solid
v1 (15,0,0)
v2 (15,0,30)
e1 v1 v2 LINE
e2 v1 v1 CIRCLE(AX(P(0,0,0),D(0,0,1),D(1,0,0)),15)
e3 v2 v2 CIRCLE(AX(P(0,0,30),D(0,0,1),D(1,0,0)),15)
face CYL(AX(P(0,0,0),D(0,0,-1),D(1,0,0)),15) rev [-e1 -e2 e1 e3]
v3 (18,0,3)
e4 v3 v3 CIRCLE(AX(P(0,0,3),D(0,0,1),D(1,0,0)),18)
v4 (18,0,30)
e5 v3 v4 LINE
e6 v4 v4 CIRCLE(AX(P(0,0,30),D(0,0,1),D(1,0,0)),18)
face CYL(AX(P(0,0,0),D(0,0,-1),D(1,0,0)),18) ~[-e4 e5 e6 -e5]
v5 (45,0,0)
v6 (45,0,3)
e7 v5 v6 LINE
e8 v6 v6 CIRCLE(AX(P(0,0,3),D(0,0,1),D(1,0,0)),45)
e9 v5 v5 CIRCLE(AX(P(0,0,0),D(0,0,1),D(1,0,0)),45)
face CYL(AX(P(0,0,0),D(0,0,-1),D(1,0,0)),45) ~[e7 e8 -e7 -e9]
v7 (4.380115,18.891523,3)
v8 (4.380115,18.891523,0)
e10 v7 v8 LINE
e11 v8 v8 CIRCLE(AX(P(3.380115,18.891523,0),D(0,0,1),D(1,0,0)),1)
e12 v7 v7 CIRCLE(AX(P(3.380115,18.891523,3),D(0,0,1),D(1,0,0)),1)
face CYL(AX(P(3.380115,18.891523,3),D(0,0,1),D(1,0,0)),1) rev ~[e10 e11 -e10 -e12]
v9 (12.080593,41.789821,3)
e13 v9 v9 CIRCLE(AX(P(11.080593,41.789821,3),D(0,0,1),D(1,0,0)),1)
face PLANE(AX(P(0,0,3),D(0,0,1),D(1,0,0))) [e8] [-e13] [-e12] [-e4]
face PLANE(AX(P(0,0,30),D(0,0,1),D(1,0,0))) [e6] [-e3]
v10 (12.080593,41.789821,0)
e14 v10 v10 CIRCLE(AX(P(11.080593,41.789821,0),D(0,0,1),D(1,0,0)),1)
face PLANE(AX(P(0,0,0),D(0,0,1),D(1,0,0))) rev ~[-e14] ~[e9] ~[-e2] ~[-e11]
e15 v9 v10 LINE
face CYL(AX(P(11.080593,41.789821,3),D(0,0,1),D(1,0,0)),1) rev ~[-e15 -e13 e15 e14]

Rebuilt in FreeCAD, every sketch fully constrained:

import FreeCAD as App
import Part
import Sketcher
Q = App.Units.Quantity

doc = App.newDocument("Part")
body = doc.addObject("PartDesign::Body", "Body")

# Sketch on XY plane
sketch1 = body.newObject("Sketcher::SketchObject", "Sketch")
sketch1.AttachmentSupport = (doc.getObject("XY_Plane"), [""])
sketch1.MapMode = "FlatFace"
sketch1.addGeometry(Part.Circle(App.Vector(0, 0, 0), App.Vector(0, 0, 1), 18), False)
sketch1.addGeometry(Part.Circle(App.Vector(0, 0, 0), App.Vector(0, 0, 1), 15), False)
sketch1.addConstraint(Sketcher.Constraint("Coincident", 0, 3, -1, 1))
sketch1.addConstraint(Sketcher.Constraint("Coincident", 1, 3, -1, 1))
sketch1.addConstraint(Sketcher.Constraint("Diameter", 0, Q("36 mm")))
sketch1.addConstraint(Sketcher.Constraint("Diameter", 1, Q("30 mm")))
pad1 = body.newObject("PartDesign::Pad", "Pad")
pad1.Profile = sketch1
pad1.Length = 30

# Sketch on XY plane
sketch2 = body.newObject("Sketcher::SketchObject", "Sketch001")
sketch2.AttachmentSupport = (doc.getObject("XY_Plane"), [""])
sketch2.MapMode = "FlatFace"
sketch2.addGeometry(Part.Circle(App.Vector(0, 0, 0), App.Vector(0, 0, 1), 45), False)
sketch2.addGeometry(Part.Circle(App.Vector(0, 0, 0), App.Vector(0, 0, 1), 18), False)
sketch2.addConstraint(Sketcher.Constraint("Coincident", 0, 3, -1, 1))
sketch2.addConstraint(Sketcher.Constraint("Coincident", 1, 3, -1, 1))
sketch2.addConstraint(Sketcher.Constraint("Diameter", 0, Q("90 mm")))
sketch2.addConstraint(Sketcher.Constraint("Diameter", 1, Q("36 mm")))
pad2 = body.newObject("PartDesign::Pad", "Pad001")
pad2.Profile = sketch2
pad2.Length = 3

# Sketch on XY plane
sketch3 = body.newObject("Sketcher::SketchObject", "Sketch002")
sketch3.AttachmentSupport = (doc.getObject("XY_Plane"), [""])
sketch3.MapMode = "FlatFace"
sketch3.AttachmentOffset = App.Placement(App.Vector(0, 0, 3), App.Rotation())
sketch3.addGeometry(Part.Circle(App.Vector(3.380115, 18.891523, 0), App.Vector(0, 0, 1), 1), False)
sketch3.addConstraint(Sketcher.Constraint("Diameter", 0, Q("2 mm")))
sketch3.addConstraint(Sketcher.Constraint("DistanceX", -1, 1, 0, 3, Q("3.380115 mm")))
sketch3.addConstraint(Sketcher.Constraint("DistanceY", -1, 1, 0, 3, Q("18.891523 mm")))
pocket1 = body.newObject("PartDesign::Pocket", "Pocket")
pocket1.Profile = sketch3
pocket1.Length = 32.8

# Sketch on XY plane
sketch4 = body.newObject("Sketcher::SketchObject", "Sketch003")
sketch4.AttachmentSupport = (doc.getObject("XY_Plane"), [""])
sketch4.MapMode = "FlatFace"
sketch4.AttachmentOffset = App.Placement(App.Vector(0, 0, 3), App.Rotation())
sketch4.addGeometry(Part.Circle(App.Vector(3.380115, 18.891523, 0), App.Vector(0, 0, 1), 1), False)
sketch4.addGeometry(Part.Circle(App.Vector(11.080593, 41.789821, 0), App.Vector(0, 0, 1), 1), False)
sketch4.addConstraint(Sketcher.Constraint("Equal", 0, 1))
sketch4.addConstraint(Sketcher.Constraint("Diameter", 0, Q("2 mm")))
sketch4.addConstraint(Sketcher.Constraint("DistanceY", 0, 3, 1, 3, Q("22.898298 mm")))
sketch4.addConstraint(Sketcher.Constraint("DistanceY", -1, 1, 1, 3, Q("41.789821 mm")))
sketch4.addConstraint(Sketcher.Constraint("DistanceX", 0, 3, 1, 3, Q("7.700478 mm")))
sketch4.addConstraint(Sketcher.Constraint("DistanceX", -1, 1, 0, 3, Q("3.380115 mm")))
pocket2 = body.newObject("PartDesign::Pocket", "Pocket001")
pocket2.Profile = sketch4
pocket2.Length = 25

doc.recompute()
